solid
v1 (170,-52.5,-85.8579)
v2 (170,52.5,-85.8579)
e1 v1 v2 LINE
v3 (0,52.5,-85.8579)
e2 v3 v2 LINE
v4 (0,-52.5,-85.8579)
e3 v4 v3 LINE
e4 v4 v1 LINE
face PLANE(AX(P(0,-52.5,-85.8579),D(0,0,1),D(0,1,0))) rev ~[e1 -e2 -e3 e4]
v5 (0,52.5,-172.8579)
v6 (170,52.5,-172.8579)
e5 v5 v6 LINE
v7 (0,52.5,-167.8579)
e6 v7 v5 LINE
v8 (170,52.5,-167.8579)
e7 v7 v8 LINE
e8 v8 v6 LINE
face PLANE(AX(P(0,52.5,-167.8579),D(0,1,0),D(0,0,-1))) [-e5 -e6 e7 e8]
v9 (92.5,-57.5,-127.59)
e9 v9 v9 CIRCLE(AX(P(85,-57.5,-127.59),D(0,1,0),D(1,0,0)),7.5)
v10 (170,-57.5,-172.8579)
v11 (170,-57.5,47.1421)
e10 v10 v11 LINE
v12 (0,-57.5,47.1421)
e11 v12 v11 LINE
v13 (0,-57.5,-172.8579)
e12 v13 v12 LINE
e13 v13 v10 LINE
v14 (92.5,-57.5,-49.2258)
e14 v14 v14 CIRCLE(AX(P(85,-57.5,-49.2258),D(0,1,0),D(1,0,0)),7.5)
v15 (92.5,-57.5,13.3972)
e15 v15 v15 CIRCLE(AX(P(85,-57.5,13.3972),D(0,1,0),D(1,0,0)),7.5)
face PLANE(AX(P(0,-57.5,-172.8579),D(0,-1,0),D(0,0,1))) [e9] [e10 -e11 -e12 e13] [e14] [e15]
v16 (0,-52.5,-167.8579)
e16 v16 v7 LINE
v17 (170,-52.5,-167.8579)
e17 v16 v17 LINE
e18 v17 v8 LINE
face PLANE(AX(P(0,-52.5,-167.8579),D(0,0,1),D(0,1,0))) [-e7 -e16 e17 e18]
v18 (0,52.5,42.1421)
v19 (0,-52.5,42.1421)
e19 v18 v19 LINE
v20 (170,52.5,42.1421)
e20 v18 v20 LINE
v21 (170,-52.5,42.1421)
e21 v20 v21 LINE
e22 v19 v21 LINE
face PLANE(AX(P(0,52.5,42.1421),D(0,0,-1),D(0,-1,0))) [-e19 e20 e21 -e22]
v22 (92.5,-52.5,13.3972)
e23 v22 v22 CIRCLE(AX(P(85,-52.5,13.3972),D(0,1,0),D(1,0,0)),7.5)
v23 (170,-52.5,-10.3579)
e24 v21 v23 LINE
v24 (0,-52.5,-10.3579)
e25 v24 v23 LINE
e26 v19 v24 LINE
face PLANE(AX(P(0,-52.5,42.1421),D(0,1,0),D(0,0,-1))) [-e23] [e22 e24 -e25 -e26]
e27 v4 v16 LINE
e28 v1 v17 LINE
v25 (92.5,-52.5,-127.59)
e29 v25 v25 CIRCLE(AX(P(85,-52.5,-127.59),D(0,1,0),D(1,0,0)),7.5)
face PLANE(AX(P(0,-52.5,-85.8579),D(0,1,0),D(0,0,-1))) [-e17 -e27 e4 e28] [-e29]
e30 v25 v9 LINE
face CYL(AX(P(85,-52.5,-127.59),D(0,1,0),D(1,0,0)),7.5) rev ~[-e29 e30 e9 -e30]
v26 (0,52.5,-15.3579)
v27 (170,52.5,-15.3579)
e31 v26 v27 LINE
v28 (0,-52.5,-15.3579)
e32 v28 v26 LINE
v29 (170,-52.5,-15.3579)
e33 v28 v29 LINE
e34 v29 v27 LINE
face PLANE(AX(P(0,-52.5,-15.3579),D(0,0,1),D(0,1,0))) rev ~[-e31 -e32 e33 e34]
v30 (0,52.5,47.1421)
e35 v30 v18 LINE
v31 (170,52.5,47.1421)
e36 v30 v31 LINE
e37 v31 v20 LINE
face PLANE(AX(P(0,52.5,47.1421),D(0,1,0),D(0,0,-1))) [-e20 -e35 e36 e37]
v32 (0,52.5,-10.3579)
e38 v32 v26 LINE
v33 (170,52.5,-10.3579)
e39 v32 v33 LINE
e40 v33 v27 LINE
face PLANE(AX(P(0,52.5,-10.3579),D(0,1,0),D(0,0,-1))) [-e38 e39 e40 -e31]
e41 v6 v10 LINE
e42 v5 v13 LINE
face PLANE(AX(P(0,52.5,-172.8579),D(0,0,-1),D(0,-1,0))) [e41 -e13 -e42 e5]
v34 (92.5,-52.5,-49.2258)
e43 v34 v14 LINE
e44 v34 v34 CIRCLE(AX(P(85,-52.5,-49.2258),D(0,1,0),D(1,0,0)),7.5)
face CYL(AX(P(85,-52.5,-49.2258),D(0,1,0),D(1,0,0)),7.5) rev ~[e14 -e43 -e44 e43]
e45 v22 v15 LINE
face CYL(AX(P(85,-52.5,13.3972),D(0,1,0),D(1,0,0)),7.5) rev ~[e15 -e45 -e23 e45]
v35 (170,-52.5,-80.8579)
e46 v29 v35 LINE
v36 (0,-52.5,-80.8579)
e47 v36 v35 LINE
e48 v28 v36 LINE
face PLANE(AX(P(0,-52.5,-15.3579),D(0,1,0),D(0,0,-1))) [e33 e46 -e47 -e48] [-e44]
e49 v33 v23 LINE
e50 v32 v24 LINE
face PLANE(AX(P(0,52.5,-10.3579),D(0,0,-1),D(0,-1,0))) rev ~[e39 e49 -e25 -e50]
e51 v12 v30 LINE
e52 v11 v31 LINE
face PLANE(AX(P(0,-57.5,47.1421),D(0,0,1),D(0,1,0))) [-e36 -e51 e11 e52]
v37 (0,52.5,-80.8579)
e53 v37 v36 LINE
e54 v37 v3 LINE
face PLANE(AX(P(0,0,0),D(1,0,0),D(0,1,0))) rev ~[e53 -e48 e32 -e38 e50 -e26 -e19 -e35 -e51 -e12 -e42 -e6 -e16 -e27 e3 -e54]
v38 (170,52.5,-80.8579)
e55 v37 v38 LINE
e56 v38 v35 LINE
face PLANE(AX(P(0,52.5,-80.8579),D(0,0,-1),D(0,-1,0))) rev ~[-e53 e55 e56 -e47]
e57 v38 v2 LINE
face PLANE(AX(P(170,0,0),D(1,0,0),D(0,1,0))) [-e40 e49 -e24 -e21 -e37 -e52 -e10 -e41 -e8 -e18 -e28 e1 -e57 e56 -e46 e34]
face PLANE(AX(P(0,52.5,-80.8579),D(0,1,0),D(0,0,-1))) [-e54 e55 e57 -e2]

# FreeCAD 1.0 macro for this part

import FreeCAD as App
import Part
import Sketcher

V = App.Vector
Q = App.Units.Quantity


def add_polygon(sketch, points):
    """Adds a closed chain of lines whose ends are joined by coincident constraints."""
    first, n = sketch.GeometryCount, len(points)
    for a, b in zip(points, points[1:] + points[:1]):
        sketch.addGeometry(Part.LineSegment(App.Vector(*a, 0), App.Vector(*b, 0)), False)
    for i in range(n):
        sketch.addConstraint(Sketcher.Constraint("Coincident", first + i, 2, first + (i + 1) % n, 1))

doc = App.newDocument("Part")
params = doc.addObject("Spreadsheet::Sheet", "Params")
for row, (alias, value) in enumerate([
    ("sketch1_height", "5 mm"),
    ("sketch1_height2", "82 mm"),
    ("sketch1_height3", "65.5 mm"),
    ("sketch1_height4", "52.5 mm"),
    ("pad1_length", "170 mm"),
    ("sketch2_diameter", "15 mm"),
    ("pocket1_length", "5 mm"),
], start=1):
    params.set(f"A{row}", alias)
    params.set(f"B{row}", "=" + value)
    params.setAlias(f"B{row}", alias)

body = doc.addObject("PartDesign::Body", "Body")

# Sketch on YZ plane
sketch1 = body.newObject("Sketcher::SketchObject", "Sketch")
sketch1.AttachmentSupport = (doc.getObject("YZ_Plane"), [""])
sketch1.MapMode = "FlatFace"
add_polygon(sketch1, [(52, 47), (-58, 47), (-58, -173), (52, -173), (52, -168), (-52, -168), (-52, -86), (52, -86), (52, -81), (-52, -81), (-52, -15), (52, -15), (52, -10), (-52, -10), (-52, 42), (52, 42)])  # lines 0-15
sketch1.addConstraint(Sketcher.Constraint("Horizontal", 0))
sketch1.addConstraint(Sketcher.Constraint("Vertical", 1))
sketch1.addConstraint(Sketcher.Constraint("Horizontal", 2))
sketch1.addConstraint(Sketcher.Constraint("Vertical", 3))
sketch1.addConstraint(Sketcher.Constraint("Horizontal", 4))
sketch1.addConstraint(Sketcher.Constraint("Vertical", 5))
sketch1.addConstraint(Sketcher.Constraint("Horizontal", 6))
sketch1.addConstraint(Sketcher.Constraint("Vertical", 7))
sketch1.addConstraint(Sketcher.Constraint("Horizontal", 8))
sketch1.addConstraint(Sketcher.Constraint("Vertical", 9))
sketch1.addConstraint(Sketcher.Constraint("Horizontal", 10))
sketch1.addConstraint(Sketcher.Constraint("Vertical", 11))
sketch1.addConstraint(Sketcher.Constraint("Horizontal", 12))
sketch1.addConstraint(Sketcher.Constraint("Vertical", 13))
sketch1.addConstraint(Sketcher.Constraint("Horizontal", 14))
sketch1.addConstraint(Sketcher.Constraint("Vertical", 15))
sketch1.addConstraint(Sketcher.Constraint("Vertical", 3, 2, 6, 2))
sketch1.addConstraint(Sketcher.Constraint("Vertical", 5, 2, 8, 2))
sketch1.addConstraint(Sketcher.Constraint("Vertical", 7, 2, 10, 2))
sketch1.addConstraint(Sketcher.Constraint("Vertical", 9, 2, 12, 2))
sketch1.addConstraint(Sketcher.Constraint("Vertical", 11, 2, 14, 2))
sketch1.addConstraint(Sketcher.Constraint("Equal", 3, 7))
sketch1.addConstraint(Sketcher.Constraint("Equal", 7, 11))
sketch1.addConstraint(Sketcher.Constraint("Equal", 11, 15))
sketch1.addConstraint(Sketcher.Constraint("DistanceY", 3, 1, 3, 2, Q("5 mm")))
sketch1.addConstraint(Sketcher.Constraint("DistanceY", 5, 1, 5, 2, Q("82 mm")))
sketch1.addConstraint(Sketcher.Constraint("DistanceY", 9, 1, 9, 2, Q("65.5 mm")))
sketch1.addConstraint(Sketcher.Constraint("DistanceY", 13, 1, 13, 2, Q("52.5 mm")))
sketch1.addConstraint(Sketcher.Constraint("DistanceX", 1, 2, 4, 2, Q("5 mm")))
sketch1.addConstraint(Sketcher.Constraint("DistanceX", -1, 1, 2, 2, Q("52.5 mm")))
sketch1.addConstraint(Sketcher.Constraint("DistanceX", 4, 2, -1, 1, Q("52.5 mm")))
sketch1.addConstraint(Sketcher.Constraint("DistanceY", -1, 1, 0, 2, Q("47.142 mm")))
sketch1.setExpression("Constraints[40]", "Params.sketch1_height")
sketch1.setExpression("Constraints[41]", "Params.sketch1_height2")
sketch1.setExpression("Constraints[42]", "Params.sketch1_height3")
sketch1.setExpression("Constraints[43]", "Params.sketch1_height4")
pad1 = body.newObject("PartDesign::Pad", "Pad")
pad1.Profile = sketch1
pad1.setExpression("Length", "Params.pad1_length")

# Sketch on XZ plane
sketch2 = body.newObject("Sketcher::SketchObject", "Sketch001")
sketch2.AttachmentSupport = (doc.getObject("XZ_Plane"), [""])
sketch2.MapMode = "FlatFace"
sketch2.AttachmentOffset = App.Placement(V(0, 0, 52.5), App.Rotation())
sketch2.addGeometry(Part.Circle(V(85, -128, 0), V(0, 0, 1), 8), False)
sketch2.addGeometry(Part.Circle(V(85, -49, 0), V(0, 0, 1), 8), False)
sketch2.addGeometry(Part.Circle(V(85, 13, 0), V(0, 0, 1), 8), False)
sketch2.addConstraint(Sketcher.Constraint("Equal", 0, 1))
sketch2.addConstraint(Sketcher.Constraint("Equal", 1, 2))
sketch2.addConstraint(Sketcher.Constraint("Vertical", 0, 3, 1, 3))
sketch2.addConstraint(Sketcher.Constraint("Vertical", 1, 3, 2, 3))
sketch2.addConstraint(Sketcher.Constraint("Diameter", 0, Q("15 mm")))
sketch2.addConstraint(Sketcher.Constraint("DistanceX", -1, 1, 0, 3, Q("85 mm")))
sketch2.addConstraint(Sketcher.Constraint("DistanceY", 0, 3, -1, 1, Q("127.59 mm")))
sketch2.addConstraint(Sketcher.Constraint("DistanceY", 1, 3, 2, 3, Q("62.623 mm")))
sketch2.addConstraint(Sketcher.Constraint("DistanceY", 1, 3, -1, 1, Q("49.2258 mm")))
sketch2.setExpression("Constraints[4]", "Params.sketch2_diameter")
pocket1 = body.newObject("PartDesign::Pocket", "Pocket")
pocket1.Profile = sketch2
pocket1.setExpression("Length", "Params.pocket1_length")
pocket1.Reversed = True

doc.recompute()
